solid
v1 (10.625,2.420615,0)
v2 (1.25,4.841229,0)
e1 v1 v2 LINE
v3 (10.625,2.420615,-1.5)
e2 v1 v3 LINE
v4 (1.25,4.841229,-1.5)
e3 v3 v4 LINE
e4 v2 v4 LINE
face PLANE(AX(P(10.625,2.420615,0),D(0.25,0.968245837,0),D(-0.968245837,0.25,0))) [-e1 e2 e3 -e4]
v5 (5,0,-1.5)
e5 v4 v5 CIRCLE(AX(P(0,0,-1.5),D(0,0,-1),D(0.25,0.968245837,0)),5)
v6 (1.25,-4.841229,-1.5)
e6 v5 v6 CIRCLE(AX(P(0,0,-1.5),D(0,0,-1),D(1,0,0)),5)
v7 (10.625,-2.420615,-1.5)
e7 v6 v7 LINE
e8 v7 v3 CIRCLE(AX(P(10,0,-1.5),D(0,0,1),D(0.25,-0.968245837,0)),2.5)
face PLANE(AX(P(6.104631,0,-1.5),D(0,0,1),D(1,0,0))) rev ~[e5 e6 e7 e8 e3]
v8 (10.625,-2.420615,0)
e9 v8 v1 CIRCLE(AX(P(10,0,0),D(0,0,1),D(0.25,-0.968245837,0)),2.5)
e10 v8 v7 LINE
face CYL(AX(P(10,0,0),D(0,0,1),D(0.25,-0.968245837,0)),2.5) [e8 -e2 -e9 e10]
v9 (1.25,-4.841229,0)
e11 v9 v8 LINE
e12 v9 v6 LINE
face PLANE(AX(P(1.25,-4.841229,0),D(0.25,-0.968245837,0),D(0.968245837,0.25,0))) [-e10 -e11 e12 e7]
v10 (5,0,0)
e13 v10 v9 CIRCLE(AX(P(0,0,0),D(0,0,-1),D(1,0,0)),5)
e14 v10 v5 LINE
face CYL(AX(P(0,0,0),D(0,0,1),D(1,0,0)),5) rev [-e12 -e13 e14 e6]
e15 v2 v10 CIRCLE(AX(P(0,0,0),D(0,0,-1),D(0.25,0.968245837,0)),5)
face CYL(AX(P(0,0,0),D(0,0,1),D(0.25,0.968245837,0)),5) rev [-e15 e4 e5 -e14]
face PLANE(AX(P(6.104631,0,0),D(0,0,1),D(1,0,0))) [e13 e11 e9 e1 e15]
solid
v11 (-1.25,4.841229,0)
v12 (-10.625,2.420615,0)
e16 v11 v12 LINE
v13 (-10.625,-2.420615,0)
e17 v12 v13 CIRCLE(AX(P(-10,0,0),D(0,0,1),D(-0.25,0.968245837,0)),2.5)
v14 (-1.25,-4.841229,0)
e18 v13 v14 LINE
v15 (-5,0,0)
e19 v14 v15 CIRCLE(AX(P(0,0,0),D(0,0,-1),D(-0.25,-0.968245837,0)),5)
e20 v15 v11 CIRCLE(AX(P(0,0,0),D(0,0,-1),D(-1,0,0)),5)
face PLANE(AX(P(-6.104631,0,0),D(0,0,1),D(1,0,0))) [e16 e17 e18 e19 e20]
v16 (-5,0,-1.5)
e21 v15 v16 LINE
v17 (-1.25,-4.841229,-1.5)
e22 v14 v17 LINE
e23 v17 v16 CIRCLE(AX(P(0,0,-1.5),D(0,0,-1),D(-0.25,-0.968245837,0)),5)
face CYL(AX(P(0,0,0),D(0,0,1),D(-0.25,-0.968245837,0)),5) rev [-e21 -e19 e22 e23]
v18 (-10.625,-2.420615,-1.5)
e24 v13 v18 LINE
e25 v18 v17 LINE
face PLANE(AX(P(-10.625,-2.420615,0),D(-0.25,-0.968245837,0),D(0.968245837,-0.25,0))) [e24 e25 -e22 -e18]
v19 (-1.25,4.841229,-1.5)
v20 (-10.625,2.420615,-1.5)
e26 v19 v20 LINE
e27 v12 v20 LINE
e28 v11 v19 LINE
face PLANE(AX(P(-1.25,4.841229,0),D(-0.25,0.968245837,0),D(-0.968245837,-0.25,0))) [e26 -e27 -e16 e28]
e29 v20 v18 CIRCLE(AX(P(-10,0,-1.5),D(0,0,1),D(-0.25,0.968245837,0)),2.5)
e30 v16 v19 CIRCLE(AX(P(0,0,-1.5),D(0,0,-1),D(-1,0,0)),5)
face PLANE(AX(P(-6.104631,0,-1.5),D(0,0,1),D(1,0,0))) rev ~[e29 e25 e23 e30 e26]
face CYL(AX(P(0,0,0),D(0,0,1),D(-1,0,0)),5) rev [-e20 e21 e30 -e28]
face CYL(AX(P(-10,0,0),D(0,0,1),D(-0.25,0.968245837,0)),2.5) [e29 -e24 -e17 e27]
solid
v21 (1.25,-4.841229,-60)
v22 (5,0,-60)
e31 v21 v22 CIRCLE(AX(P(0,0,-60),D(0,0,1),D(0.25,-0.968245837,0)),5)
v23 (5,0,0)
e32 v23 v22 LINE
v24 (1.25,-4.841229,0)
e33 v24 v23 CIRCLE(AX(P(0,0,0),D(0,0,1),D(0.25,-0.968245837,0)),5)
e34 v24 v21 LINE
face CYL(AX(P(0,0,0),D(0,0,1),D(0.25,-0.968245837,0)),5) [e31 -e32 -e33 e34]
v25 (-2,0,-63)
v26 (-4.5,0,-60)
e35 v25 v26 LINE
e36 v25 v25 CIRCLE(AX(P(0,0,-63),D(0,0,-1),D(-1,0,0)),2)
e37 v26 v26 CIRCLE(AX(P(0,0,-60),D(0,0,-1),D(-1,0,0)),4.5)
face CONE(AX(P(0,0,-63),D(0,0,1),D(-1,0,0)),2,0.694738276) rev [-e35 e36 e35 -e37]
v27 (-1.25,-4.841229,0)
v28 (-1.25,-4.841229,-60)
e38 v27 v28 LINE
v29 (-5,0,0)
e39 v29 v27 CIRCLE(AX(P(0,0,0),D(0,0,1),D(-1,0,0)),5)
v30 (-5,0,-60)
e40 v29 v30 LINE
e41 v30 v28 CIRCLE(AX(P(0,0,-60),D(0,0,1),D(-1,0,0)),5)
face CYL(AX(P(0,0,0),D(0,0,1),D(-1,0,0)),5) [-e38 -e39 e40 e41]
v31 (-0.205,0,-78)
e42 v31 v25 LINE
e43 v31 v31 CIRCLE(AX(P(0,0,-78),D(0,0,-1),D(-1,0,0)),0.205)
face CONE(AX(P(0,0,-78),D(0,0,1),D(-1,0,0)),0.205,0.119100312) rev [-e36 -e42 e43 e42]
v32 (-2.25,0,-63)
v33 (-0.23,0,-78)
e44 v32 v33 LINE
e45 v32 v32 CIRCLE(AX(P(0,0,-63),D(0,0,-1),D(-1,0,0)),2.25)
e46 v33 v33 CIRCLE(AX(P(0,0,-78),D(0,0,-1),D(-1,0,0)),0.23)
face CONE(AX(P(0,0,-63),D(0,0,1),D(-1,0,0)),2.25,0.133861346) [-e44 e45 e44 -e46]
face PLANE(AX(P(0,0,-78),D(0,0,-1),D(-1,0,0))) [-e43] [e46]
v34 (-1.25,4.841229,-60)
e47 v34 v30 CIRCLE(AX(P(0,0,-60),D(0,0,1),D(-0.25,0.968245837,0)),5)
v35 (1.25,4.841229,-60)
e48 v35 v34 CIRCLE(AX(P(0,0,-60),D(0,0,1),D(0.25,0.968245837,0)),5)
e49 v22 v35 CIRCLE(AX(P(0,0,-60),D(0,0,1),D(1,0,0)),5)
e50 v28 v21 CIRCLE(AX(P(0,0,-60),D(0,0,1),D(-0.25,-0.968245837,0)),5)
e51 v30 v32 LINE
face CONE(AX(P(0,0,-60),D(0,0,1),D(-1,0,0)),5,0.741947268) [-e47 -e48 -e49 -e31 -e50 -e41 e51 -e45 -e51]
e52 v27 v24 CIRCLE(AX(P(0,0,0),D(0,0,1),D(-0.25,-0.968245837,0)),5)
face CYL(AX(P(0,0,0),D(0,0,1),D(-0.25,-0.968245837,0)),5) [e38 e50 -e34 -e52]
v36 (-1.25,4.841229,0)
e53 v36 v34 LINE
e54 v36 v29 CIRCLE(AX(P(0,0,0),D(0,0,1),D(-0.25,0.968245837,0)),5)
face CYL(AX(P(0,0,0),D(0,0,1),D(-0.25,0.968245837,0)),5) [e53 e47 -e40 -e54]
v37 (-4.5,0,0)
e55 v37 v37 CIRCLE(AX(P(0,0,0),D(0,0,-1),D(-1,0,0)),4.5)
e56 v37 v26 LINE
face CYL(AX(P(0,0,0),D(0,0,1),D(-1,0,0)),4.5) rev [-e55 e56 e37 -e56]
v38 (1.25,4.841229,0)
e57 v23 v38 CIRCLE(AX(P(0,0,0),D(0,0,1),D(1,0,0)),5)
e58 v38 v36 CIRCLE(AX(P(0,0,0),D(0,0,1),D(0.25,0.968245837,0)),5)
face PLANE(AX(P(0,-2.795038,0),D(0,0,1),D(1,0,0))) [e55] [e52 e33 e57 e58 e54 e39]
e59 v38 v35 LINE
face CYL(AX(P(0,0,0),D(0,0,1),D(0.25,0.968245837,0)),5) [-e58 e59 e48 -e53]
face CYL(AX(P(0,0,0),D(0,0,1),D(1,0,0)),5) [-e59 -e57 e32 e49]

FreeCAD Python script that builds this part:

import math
import FreeCAD as App
import Part
import Sketcher

V = App.Vector
Q = App.Units.Quantity


def add_polygon(sketch, points):
    """Adds a closed chain of lines whose ends are joined by coincident constraints."""
    first, n = sketch.GeometryCount, len(points)
    for a, b in zip(points, points[1:] + points[:1]):
        sketch.addGeometry(Part.LineSegment(App.Vector(*a, 0), App.Vector(*b, 0)), False)
    for i in range(n):
        sketch.addConstraint(Sketcher.Constraint("Coincident", first + i, 2, first + (i + 1) % n, 1))

doc = App.newDocument("Part")
body = doc.addObject("PartDesign::Body", "Body")

sketch1 = body.newObject("Sketcher::SketchObject", "Sketch")
sketch1.AttachmentSupport = (doc.getObject("XY_Plane"), [""])
sketch1.MapMode = "FlatFace"
sketch1.addGeometry([
    Part.ArcOfCircle(Part.Circle(V(0, 0, 0), V(0, 0, 1), 5), math.radians(104.477512), math.radians(180)),
    Part.LineSegment(V(-1.25, 4.841229, 0), V(-10.625, 2.420615, 0)),
    Part.ArcOfCircle(Part.Circle(V(-10, 0, 0), V(0, 0, 1), 2.5), math.radians(104.477512), math.radians(255.522488)),
    Part.LineSegment(V(-10.625, -2.420615, 0), V(-1.25, -4.841229, 0)),
    Part.ArcOfCircle(Part.Circle(V(0, 0, 0), V(0, 0, 1), 5), math.radians(180), math.radians(255.522488)),
], False)
sketch1.addConstraint([
    Sketcher.Constraint("Tangent", 0, 1, 1, 1),
    Sketcher.Constraint("Tangent", 1, 2, 2, 1),
    Sketcher.Constraint("Tangent", 2, 2, 3, 1),
    Sketcher.Constraint("Tangent", 3, 2, 4, 2),
    Sketcher.Constraint("Tangent", 4, 1, 0, 2),
    Sketcher.Constraint("Coincident", 0, 3, -1, 1),
    Sketcher.Constraint("Equal", 0, 4),
    Sketcher.Constraint("PointOnObject", 2, 3, -1),
    Sketcher.Constraint("PointOnObject", 4, 1, -1),
    Sketcher.Constraint("Radius", 0, Q("5 mm")),
    Sketcher.Constraint("Radius", 2, Q("2.5 mm")),
    Sketcher.Constraint("DistanceX", 2, 3, -1, 1, Q("10 mm")),
])
pad1 = body.newObject("PartDesign::Pad", "Pad")
pad1.Profile = sketch1
pad1.Length = 1.5
pad1.Reversed = True
body2 = doc.addObject("PartDesign::Body", "Body001")

sketch2 = body2.newObject("Sketcher::SketchObject", "Sketch001")
sketch2.AttachmentSupport = (doc.getObject("XY_Plane001"), [""])
sketch2.MapMode = "FlatFace"
sketch2.addGeometry([
    Part.ArcOfCircle(Part.Circle(V(0, 0, 0), V(0, 0, 1), 5), math.radians(0), math.radians(75.522488)),
    Part.ArcOfCircle(Part.Circle(V(0, 0, 0), V(0, 0, 1), 5), math.radians(-75.522488), math.radians(0)),
    Part.LineSegment(V(1.25, -4.841229, 0), V(10.625, -2.420615, 0)),
    Part.ArcOfCircle(Part.Circle(V(10, 0, 0), V(0, 0, 1), 2.5), math.radians(-75.522488), math.radians(75.522488)),
    Part.LineSegment(V(10.625, 2.420615, 0), V(1.25, 4.841229, 0)),
], False)
sketch2.addConstraint([
    Sketcher.Constraint("Tangent", 0, 1, 1, 2),
    Sketcher.Constraint("Tangent", 1, 1, 2, 1),
    Sketcher.Constraint("Tangent", 2, 2, 3, 1),
    Sketcher.Constraint("Tangent", 3, 2, 4, 1),
    Sketcher.Constraint("Tangent", 4, 2, 0, 2),
    Sketcher.Constraint("Coincident", 0, 3, -1, 1),
    Sketcher.Constraint("Equal", 0, 1),
    Sketcher.Constraint("PointOnObject", 3, 3, -1),
    Sketcher.Constraint("PointOnObject", 0, 1, -1),
    Sketcher.Constraint("Radius", 0, Q("5 mm")),
    Sketcher.Constraint("Radius", 3, Q("2.5 mm")),
    Sketcher.Constraint("DistanceX", -1, 1, 3, 3, Q("10 mm")),
])
pad2 = body2.newObject("PartDesign::Pad", "Pad001")
pad2.Profile = sketch2
pad2.Length = 1.5
pad2.Reversed = True
body3 = doc.addObject("PartDesign::Body", "Body002")

sketch3 = body3.newObject("Sketcher::SketchObject", "Sketch002")
sketch3.AttachmentSupport = (doc.getObject("XY_Plane002"), [""])
sketch3.MapMode = "FlatFace"
sketch3.addGeometry([
    Part.ArcOfCircle(Part.Circle(V(0, 0, 0), V(0, 0, 1), 5), math.radians(-75.522488), math.radians(0)),
    Part.ArcOfCircle(Part.Circle(V(0, 0, 0), V(0, 0, 1), 5), math.radians(0), math.radians(75.522488)),
    Part.ArcOfCircle(Part.Circle(V(0, 0, 0), V(0, 0, 1), 5), math.radians(75.522488), math.radians(104.477512)),
    Part.ArcOfCircle(Part.Circle(V(0, 0, 0), V(0, 0, 1), 5), math.radians(104.477512), math.radians(180)),
    Part.ArcOfCircle(Part.Circle(V(0, 0, 0), V(0, 0, 1), 5), math.radians(180), math.radians(255.522488)),
    Part.ArcOfCircle(Part.Circle(V(0, 0, 0), V(0, 0, 1), 5), math.radians(-104.477512), math.radians(-75.522488)),
    Part.Circle(V(0, 0, 0), V(0, 0, 1), 4.5),
], False)
sketch3.addConstraint([
    Sketcher.Constraint("Tangent", 0, 2, 1, 1),
    Sketcher.Constraint("Tangent", 1, 2, 2, 1),
    Sketcher.Constraint("Tangent", 2, 2, 3, 1),
    Sketcher.Constraint("Tangent", 3, 2, 4, 1),
    Sketcher.Constraint("Tangent", 4, 2, 5, 1),
    Sketcher.Constraint("Tangent", 5, 2, 0, 1),
    Sketcher.Constraint("Coincident", 0, 3, -1, 1),
    Sketcher.Constraint("Coincident", 2, 3, -1, 1),
    Sketcher.Constraint("Coincident", 6, 3, -1, 1),
    Sketcher.Constraint("Equal", 2, 3),
    Sketcher.Constraint("PointOnObject", 0, 2, -1),
    Sketcher.Constraint("PointOnObject", 3, 2, -1),
    Sketcher.Constraint("Horizontal", 1, 2, 2, 2),
    Sketcher.Constraint("Horizontal", 4, 2, 5, 2),
    Sketcher.Constraint("Vertical", 2, 2, 4, 2),
    Sketcher.Constraint("Diameter", 6, Q("9 mm")),
    Sketcher.Constraint("Radius", 0, Q("5 mm")),
    Sketcher.Constraint("DistanceX", 2, 2, 1, 2, Q("2.5 mm")),
])
pad3 = body3.newObject("PartDesign::Pad", "Pad002")
pad3.Profile = sketch3
pad3.Length = 60
pad3.Reversed = True

sketch4 = body3.newObject("Sketcher::SketchObject", "Sketch003")
sketch4.AttachmentSupport = (doc.getObject("XZ_Plane002"), [""])
sketch4.MapMode = "FlatFace"
add_polygon(sketch4, [(-4.5, -60), (-5, -60), (-2.25, -63), (-2, -63)])
sketch4.addConstraint([
    Sketcher.Constraint("Horizontal", 0),
    Sketcher.Constraint("Horizontal", 2),
    Sketcher.Constraint("DistanceX", 0, 2, 0, 1, Q("0.5 mm")),
    Sketcher.Constraint("DistanceX", 0, 2, -1, 1, Q("5 mm")),
    Sketcher.Constraint("DistanceY", 0, 2, -1, 1, Q("60 mm")),
    Sketcher.Constraint("DistanceY", 1, 2, -1, 1, Q("63 mm")),
    Sketcher.Constraint("DistanceX", 2, 2, -1, 1, Q("2 mm")),
    Sketcher.Constraint("DistanceX", 2, 1, 2, 2, Q("0.25 mm")),
])
revolution = body3.newObject("PartDesign::Revolution", "Revolution")
revolution.Profile = sketch4
revolution.ReferenceAxis = (sketch4, ["V_Axis"])
revolution.Angle = 360

sketch5 = body3.newObject("Sketcher::SketchObject", "Sketch004")
sketch5.AttachmentSupport = (doc.getObject("XZ_Plane002"), [""])
sketch5.MapMode = "FlatFace"
add_polygon(sketch5, [(-2, -63), (-2.25, -63), (-0.23, -78), (-0.205, -78)])
sketch5.addConstraint([
    Sketcher.Constraint("Horizontal", 0),
    Sketcher.Constraint("Horizontal", 2),
    Sketcher.Constraint("DistanceY", 0, 2, -1, 1, Q("63 mm")),
    Sketcher.Constraint("DistanceY", 1, 2, -1, 1, Q("78 mm")),
    Sketcher.Constraint("DistanceX", 3, 2, -1, 1, Q("2 mm")),
    Sketcher.Constraint("DistanceX", 0, 2, 0, 1, Q("0.25 mm")),
    Sketcher.Constraint("DistanceX", 2, 1, 2, 2, Q("0.025 mm")),
    Sketcher.Constraint("DistanceX", 1, 2, -1, 1, Q("0.23 mm")),
])
revolution2 = body3.newObject("PartDesign::Revolution", "Revolution001")
revolution2.Profile = sketch5
revolution2.ReferenceAxis = (sketch5, ["V_Axis"])
revolution2.Angle = 360

doc.recompute()
